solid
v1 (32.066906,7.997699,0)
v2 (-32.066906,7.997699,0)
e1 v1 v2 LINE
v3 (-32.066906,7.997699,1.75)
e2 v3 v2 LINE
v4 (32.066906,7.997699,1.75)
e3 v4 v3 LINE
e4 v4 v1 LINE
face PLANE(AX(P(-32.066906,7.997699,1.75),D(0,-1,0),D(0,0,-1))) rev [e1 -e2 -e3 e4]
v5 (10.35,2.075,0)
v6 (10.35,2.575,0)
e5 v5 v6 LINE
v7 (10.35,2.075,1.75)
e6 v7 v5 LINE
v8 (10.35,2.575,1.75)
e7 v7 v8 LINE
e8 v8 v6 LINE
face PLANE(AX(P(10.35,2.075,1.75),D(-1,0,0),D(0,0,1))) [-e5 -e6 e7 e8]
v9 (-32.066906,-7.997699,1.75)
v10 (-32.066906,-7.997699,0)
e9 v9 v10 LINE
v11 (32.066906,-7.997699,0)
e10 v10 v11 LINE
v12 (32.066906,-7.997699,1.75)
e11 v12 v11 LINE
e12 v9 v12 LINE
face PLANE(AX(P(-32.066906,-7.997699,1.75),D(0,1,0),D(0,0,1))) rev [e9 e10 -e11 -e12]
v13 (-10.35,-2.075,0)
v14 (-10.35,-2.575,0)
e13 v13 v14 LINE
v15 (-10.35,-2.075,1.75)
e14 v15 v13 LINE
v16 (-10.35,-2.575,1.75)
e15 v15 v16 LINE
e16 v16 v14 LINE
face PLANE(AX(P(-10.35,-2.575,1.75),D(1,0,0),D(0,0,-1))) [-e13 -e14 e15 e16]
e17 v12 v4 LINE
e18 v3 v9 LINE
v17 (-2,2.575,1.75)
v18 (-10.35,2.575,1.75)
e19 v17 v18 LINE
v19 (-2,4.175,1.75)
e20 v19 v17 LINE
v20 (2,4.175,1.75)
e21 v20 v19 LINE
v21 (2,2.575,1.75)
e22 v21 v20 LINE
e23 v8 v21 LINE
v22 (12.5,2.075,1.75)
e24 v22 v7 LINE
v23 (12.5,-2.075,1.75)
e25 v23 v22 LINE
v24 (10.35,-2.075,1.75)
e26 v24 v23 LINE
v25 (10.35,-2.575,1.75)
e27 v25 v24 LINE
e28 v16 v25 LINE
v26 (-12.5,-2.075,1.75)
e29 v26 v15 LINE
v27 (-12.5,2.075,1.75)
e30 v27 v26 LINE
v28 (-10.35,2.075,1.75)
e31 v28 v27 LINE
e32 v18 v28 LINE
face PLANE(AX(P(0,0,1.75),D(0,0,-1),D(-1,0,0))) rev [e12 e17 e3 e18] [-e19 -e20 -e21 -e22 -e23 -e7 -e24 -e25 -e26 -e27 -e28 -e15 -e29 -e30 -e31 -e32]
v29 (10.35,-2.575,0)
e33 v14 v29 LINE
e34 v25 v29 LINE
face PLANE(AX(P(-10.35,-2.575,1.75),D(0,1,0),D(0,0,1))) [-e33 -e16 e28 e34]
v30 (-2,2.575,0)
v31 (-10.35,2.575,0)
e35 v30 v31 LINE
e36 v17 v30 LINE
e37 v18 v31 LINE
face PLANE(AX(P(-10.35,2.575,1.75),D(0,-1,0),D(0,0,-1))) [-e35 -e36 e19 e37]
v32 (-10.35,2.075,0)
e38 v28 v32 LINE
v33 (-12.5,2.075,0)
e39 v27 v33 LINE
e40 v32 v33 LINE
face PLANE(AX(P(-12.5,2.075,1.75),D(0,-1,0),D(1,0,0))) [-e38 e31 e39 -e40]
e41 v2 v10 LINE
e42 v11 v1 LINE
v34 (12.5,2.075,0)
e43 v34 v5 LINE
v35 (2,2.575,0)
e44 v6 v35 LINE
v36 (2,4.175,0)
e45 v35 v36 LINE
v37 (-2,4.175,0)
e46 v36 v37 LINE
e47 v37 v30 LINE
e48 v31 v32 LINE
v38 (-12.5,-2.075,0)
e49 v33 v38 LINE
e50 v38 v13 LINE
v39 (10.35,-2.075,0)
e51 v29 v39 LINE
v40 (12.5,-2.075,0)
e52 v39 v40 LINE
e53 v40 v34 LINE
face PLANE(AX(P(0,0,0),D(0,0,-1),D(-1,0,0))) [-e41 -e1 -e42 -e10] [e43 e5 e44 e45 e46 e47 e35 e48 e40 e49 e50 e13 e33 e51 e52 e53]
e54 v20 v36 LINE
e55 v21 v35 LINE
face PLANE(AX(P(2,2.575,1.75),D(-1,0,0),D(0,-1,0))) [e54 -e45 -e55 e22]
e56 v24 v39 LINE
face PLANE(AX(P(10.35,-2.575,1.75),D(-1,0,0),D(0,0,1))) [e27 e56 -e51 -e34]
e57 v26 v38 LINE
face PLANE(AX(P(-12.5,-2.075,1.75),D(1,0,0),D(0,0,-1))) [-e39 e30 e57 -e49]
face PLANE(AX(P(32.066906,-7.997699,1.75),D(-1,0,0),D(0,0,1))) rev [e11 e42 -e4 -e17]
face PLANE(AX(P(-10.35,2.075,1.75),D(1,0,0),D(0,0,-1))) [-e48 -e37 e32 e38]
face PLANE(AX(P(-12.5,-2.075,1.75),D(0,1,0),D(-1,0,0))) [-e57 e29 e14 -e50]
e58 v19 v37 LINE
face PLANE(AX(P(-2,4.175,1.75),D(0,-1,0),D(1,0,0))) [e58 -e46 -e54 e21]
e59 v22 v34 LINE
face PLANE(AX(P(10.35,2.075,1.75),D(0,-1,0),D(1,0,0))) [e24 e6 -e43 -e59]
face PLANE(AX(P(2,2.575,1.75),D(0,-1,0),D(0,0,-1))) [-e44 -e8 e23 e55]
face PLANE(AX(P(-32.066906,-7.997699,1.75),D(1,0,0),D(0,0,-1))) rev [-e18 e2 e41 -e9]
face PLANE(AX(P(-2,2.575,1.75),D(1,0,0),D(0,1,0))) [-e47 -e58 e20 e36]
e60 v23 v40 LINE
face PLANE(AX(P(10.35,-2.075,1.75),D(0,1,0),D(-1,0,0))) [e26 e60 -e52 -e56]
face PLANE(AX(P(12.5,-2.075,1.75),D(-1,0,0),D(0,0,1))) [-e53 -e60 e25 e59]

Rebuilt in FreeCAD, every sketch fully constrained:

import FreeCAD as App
import Part
import Sketcher

doc = App.newDocument("Part")
body = doc.addObject("PartDesign::Body", "Body")

sketch1 = doc.addObject("Sketcher::SketchObject", "Sketch")
body.addObject(sketch1)
sketch1.AttachmentSupport = (doc.XY_Plane, [""])
sketch1.MapMode = "FlatFace"
sketch1.addGeometry(Part.LineSegment(App.Vector(-32.066906, 7.997699, 0), App.Vector(-32.066906, -7.997699, 0)), False)
sketch1.addGeometry(Part.LineSegment(App.Vector(-32.066906, -7.997699, 0), App.Vector(32.066906, -7.997699, 0)), False)
sketch1.addGeometry(Part.LineSegment(App.Vector(32.066906, -7.997699, 0), App.Vector(32.066906, 7.997699, 0)), False)
sketch1.addGeometry(Part.LineSegment(App.Vector(32.066906, 7.997699, 0), App.Vector(-32.066906, 7.997699, 0)), False)
sketch1.addGeometry(Part.LineSegment(App.Vector(-10.35, -2.075, 0), App.Vector(-12.5, -2.075, 0)), False)
sketch1.addGeometry(Part.LineSegment(App.Vector(-12.5, -2.075, 0), App.Vector(-12.5, 2.075, 0)), False)
sketch1.addGeometry(Part.LineSegment(App.Vector(-12.5, 2.075, 0), App.Vector(-10.35, 2.075, 0)), False)
sketch1.addGeometry(Part.LineSegment(App.Vector(-10.35, 2.075, 0), App.Vector(-10.35, 2.575, 0)), False)
sketch1.addGeometry(Part.LineSegment(App.Vector(-10.35, 2.575, 0), App.Vector(-2, 2.575, 0)), False)
sketch1.addGeometry(Part.LineSegment(App.Vector(-2, 2.575, 0), App.Vector(-2, 4.175, 0)), False)
sketch1.addGeometry(Part.LineSegment(App.Vector(-2, 4.175, 0), App.Vector(2, 4.175, 0)), False)
sketch1.addGeometry(Part.LineSegment(App.Vector(2, 4.175, 0), App.Vector(2, 2.575, 0)), False)
sketch1.addGeometry(Part.LineSegment(App.Vector(2, 2.575, 0), App.Vector(10.35, 2.575, 0)), False)
sketch1.addGeometry(Part.LineSegment(App.Vector(10.35, 2.575, 0), App.Vector(10.35, 2.075, 0)), False)
sketch1.addGeometry(Part.LineSegment(App.Vector(10.35, 2.075, 0), App.Vector(12.5, 2.075, 0)), False)
sketch1.addGeometry(Part.LineSegment(App.Vector(12.5, 2.075, 0), App.Vector(12.5, -2.075, 0)), False)
sketch1.addGeometry(Part.LineSegment(App.Vector(12.5, -2.075, 0), App.Vector(10.35, -2.075, 0)), False)
sketch1.addGeometry(Part.LineSegment(App.Vector(10.35, -2.075, 0), App.Vector(10.35, -2.575, 0)), False)
sketch1.addGeometry(Part.LineSegment(App.Vector(10.35, -2.575, 0), App.Vector(-10.35, -2.575, 0)), False)
sketch1.addGeometry(Part.LineSegment(App.Vector(-10.35, -2.575, 0), App.Vector(-10.35, -2.075, 0)), False)
sketch1.addConstraint(Sketcher.Constraint("Coincident", 0, 2, 1, 1))
sketch1.addConstraint(Sketcher.Constraint("Coincident", 1, 2, 2, 1))
sketch1.addConstraint(Sketcher.Constraint("Coincident", 2, 2, 3, 1))
sketch1.addConstraint(Sketcher.Constraint("Coincident", 3, 2, 0, 1))
sketch1.addConstraint(Sketcher.Constraint("Coincident", 4, 2, 5, 1))
sketch1.addConstraint(Sketcher.Constraint("Coincident", 5, 2, 6, 1))
sketch1.addConstraint(Sketcher.Constraint("Coincident", 6, 2, 7, 1))
sketch1.addConstraint(Sketcher.Constraint("Coincident", 7, 2, 8, 1))
sketch1.addConstraint(Sketcher.Constraint("Coincident", 8, 2, 9, 1))
sketch1.addConstraint(Sketcher.Constraint("Coincident", 9, 2, 10, 1))
sketch1.addConstraint(Sketcher.Constraint("Coincident", 10, 2, 11, 1))
sketch1.addConstraint(Sketcher.Constraint("Coincident", 11, 2, 12, 1))
sketch1.addConstraint(Sketcher.Constraint("Coincident", 12, 2, 13, 1))
sketch1.addConstraint(Sketcher.Constraint("Coincident", 13, 2, 14, 1))
sketch1.addConstraint(Sketcher.Constraint("Coincident", 14, 2, 15, 1))
sketch1.addConstraint(Sketcher.Constraint("Coincident", 15, 2, 16, 1))
sketch1.addConstraint(Sketcher.Constraint("Coincident", 16, 2, 17, 1))
sketch1.addConstraint(Sketcher.Constraint("Coincident", 17, 2, 18, 1))
sketch1.addConstraint(Sketcher.Constraint("Coincident", 18, 2, 19, 1))
sketch1.addConstraint(Sketcher.Constraint("Coincident", 19, 2, 4, 1))
sketch1.addConstraint(Sketcher.Constraint("Vertical", 0))
sketch1.addConstraint(Sketcher.Constraint("Horizontal", 1))
sketch1.addConstraint(Sketcher.Constraint("Vertical", 2))
sketch1.addConstraint(Sketcher.Constraint("Horizontal", 3))
sketch1.addConstraint(Sketcher.Constraint("Horizontal", 4))
sketch1.addConstraint(Sketcher.Constraint("Vertical", 5))
sketch1.addConstraint(Sketcher.Constraint("Horizontal", 6))
sketch1.addConstraint(Sketcher.Constraint("Vertical", 7))
sketch1.addConstraint(Sketcher.Constraint("Horizontal", 8))
sketch1.addConstraint(Sketcher.Constraint("Vertical", 9))
sketch1.addConstraint(Sketcher.Constraint("Horizontal", 10))
sketch1.addConstraint(Sketcher.Constraint("Vertical", 11))
sketch1.addConstraint(Sketcher.Constraint("Horizontal", 12))
sketch1.addConstraint(Sketcher.Constraint("Vertical", 13))
sketch1.addConstraint(Sketcher.Constraint("Horizontal", 14))
sketch1.addConstraint(Sketcher.Constraint("Vertical", 15))
sketch1.addConstraint(Sketcher.Constraint("Horizontal", 16))
sketch1.addConstraint(Sketcher.Constraint("Vertical", 17))
sketch1.addConstraint(Sketcher.Constraint("Horizontal", 18))
sketch1.addConstraint(Sketcher.Constraint("Vertical", 19))
sketch1.addConstraint(Sketcher.Constraint("Symmetric", 0, 2, 2, 2, -1, 1))
sketch1.addConstraint(Sketcher.Constraint("Symmetric", 4, 2, 14, 2, -1, 1))
sketch1.addConstraint(Sketcher.Constraint("Symmetric", 6, 2, 16, 2, -1, 1))
sketch1.addConstraint(Sketcher.Constraint("Symmetric", 12, 2, 18, 2, -1, 1))
sketch1.addConstraint(Sketcher.Constraint("Symmetric", 8, 2, 11, 2, -2))
sketch1.addConstraint(Sketcher.Constraint("Symmetric", 6, 2, 13, 2, -2))
sketch1.addConstraint(Sketcher.Constraint("DistanceX", 10, 1, 10, 2, 4.0))
sketch1.addConstraint(Sketcher.Constraint("DistanceX", 18, 2, 18, 1, 20.7))
sketch1.addConstraint(Sketcher.Constraint("DistanceY", 7, 1, 7, 2, 0.5))
sketch1.addConstraint(Sketcher.Constraint("DistanceY", 9, 1, 9, 2, 1.6))
sketch1.addConstraint(Sketcher.Constraint("DistanceX", 4, 2, 4, 1, 2.15))
sketch1.addConstraint(Sketcher.Constraint("DistanceY", 5, 1, 5, 2, 4.15))
sketch1.addConstraint(Sketcher.Constraint("DistanceY", 0, 2, 0, 1, 15.995399))
sketch1.addConstraint(Sketcher.Constraint("DistanceX", 1, 1, 1, 2, 64.133812))
pad1 = doc.addObject("PartDesign::Pad", "Pad")
body.addObject(pad1)
pad1.Profile = sketch1
pad1.Length = 1.75

doc.recompute()
